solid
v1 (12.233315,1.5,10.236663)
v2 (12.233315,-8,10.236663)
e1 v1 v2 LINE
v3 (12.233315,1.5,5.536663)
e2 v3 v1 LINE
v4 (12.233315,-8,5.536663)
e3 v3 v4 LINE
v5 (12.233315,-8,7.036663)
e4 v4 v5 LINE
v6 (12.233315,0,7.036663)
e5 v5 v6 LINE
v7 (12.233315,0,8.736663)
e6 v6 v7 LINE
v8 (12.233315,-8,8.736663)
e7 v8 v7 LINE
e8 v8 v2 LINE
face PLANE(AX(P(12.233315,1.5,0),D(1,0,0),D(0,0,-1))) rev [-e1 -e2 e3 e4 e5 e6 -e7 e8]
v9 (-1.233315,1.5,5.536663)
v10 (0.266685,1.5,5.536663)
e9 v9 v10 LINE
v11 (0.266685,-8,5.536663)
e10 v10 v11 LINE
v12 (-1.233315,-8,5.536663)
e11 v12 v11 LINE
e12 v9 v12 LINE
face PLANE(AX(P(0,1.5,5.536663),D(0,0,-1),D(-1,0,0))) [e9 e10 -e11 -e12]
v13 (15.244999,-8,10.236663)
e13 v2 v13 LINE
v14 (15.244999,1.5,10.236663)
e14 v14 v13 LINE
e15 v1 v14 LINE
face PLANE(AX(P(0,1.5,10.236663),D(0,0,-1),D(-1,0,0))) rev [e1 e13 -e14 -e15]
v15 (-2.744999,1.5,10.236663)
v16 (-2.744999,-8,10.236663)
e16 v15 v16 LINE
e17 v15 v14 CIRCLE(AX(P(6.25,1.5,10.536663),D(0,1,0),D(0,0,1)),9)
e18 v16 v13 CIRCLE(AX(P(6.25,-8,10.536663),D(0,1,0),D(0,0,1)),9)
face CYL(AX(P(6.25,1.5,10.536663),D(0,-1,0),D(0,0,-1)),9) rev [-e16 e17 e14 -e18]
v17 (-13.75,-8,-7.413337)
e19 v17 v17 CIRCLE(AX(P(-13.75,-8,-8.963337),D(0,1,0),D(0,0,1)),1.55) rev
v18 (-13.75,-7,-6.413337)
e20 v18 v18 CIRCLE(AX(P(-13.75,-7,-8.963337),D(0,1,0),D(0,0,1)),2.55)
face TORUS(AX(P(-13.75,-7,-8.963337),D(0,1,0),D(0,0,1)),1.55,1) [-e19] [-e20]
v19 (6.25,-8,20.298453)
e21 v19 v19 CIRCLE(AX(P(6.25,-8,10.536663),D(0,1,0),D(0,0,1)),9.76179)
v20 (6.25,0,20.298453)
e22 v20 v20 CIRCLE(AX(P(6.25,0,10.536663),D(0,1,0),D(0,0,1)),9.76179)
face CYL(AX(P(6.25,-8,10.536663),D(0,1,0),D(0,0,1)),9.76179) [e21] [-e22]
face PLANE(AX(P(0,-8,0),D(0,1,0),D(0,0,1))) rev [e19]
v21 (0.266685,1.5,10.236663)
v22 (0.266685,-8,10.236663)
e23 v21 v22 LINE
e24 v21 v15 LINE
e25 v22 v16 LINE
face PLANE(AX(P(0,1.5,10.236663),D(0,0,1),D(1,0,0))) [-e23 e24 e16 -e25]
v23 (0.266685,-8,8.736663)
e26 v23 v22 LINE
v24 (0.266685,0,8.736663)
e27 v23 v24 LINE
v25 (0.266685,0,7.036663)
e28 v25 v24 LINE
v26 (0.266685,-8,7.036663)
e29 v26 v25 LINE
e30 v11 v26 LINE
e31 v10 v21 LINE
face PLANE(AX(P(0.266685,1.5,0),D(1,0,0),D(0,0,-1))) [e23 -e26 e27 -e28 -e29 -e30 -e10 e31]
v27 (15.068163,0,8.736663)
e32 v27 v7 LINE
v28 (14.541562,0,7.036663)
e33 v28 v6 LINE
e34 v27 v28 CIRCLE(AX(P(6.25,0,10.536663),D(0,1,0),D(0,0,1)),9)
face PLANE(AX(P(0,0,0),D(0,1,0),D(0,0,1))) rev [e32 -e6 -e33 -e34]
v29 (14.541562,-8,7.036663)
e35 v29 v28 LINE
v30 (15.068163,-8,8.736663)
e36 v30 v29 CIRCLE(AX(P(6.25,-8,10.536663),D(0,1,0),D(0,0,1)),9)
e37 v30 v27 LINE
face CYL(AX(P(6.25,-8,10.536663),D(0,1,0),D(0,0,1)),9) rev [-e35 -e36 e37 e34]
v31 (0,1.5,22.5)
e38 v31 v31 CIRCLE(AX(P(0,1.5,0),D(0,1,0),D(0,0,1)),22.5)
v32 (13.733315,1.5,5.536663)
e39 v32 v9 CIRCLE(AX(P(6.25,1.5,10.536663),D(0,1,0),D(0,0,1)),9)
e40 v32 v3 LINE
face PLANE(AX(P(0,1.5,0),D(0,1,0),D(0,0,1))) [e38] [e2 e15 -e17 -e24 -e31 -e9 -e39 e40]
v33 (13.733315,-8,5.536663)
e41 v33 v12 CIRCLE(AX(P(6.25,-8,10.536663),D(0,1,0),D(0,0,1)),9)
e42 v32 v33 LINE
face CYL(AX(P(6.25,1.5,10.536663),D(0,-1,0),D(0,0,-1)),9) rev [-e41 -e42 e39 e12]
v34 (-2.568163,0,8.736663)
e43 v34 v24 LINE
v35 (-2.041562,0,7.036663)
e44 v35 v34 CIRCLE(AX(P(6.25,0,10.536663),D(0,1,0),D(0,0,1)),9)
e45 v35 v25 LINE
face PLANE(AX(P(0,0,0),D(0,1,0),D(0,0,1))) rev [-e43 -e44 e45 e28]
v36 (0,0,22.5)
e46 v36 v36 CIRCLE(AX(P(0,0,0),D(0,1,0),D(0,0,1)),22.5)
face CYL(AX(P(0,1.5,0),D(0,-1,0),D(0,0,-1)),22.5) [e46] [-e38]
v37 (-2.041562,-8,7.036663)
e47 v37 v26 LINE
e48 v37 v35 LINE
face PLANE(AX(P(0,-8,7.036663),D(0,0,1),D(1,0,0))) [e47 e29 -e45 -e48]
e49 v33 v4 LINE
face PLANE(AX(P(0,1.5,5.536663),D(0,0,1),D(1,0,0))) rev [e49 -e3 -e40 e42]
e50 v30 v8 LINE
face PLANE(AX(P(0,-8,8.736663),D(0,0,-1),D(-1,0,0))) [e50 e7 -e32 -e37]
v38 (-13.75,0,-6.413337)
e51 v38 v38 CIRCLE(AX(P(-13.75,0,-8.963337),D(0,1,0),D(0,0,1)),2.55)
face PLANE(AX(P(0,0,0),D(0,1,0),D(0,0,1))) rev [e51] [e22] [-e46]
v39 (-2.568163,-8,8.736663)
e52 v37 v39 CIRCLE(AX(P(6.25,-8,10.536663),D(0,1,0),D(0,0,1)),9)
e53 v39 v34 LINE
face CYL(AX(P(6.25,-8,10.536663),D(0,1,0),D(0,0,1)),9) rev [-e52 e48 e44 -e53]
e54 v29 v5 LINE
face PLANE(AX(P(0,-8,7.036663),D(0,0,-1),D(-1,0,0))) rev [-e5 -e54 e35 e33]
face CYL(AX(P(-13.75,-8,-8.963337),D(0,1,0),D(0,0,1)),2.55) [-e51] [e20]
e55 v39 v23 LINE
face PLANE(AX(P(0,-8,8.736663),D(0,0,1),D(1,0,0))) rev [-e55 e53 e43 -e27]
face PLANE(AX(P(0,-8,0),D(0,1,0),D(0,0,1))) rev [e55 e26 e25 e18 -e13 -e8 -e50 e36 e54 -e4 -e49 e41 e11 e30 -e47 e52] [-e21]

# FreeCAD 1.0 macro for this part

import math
import FreeCAD as App
import Part
import Sketcher

V = App.Vector


def edges_at(feature, points):
    """Names of the edges that pass closest to the given points."""
    edges = feature.Shape.Edges
    near = lambda p: min(range(len(edges)), key=lambda i: edges[i].distToShape(Part.Vertex(*p))[0])
    return sorted({f"Edge{near(p) + 1}" for p in points})

doc = App.newDocument("Part")
body = doc.addObject("PartDesign::Body", "Body")

# Sketch on XZ plane
sketch1 = doc.addObject("Sketcher::SketchObject", "Sketch")
body.addObject(sketch1)
sketch1.AttachmentSupport = (doc.XZ_Plane, [""])
sketch1.MapMode = "FlatFace"
sketch1.addGeometry(Part.Circle(V(0, 0, 0), V(0, 0, 1), 22.5), False)
sketch1.addGeometry(Part.LineSegment(V(-2.744999, 10.236663, 0), V(0.266685, 10.236663, 0)), False)
sketch1.addGeometry(Part.LineSegment(V(0.266685, 10.236663, 0), V(0.266685, 5.536663, 0)), False)
sketch1.addGeometry(Part.LineSegment(V(0.266685, 5.536663, 0), V(-1.233315, 5.536663, 0)), False)
sketch1.addGeometry(Part.ArcOfCircle(Part.Circle(V(6.25, 10.536663, 0), V(0, 0, 1), 9), math.radians(-146.251011), math.radians(-33.748989)), False)
sketch1.addGeometry(Part.LineSegment(V(13.733315, 5.536663, 0), V(12.233315, 5.536663, 0)), False)
sketch1.addGeometry(Part.LineSegment(V(12.233315, 5.536663, 0), V(12.233315, 10.236663, 0)), False)
sketch1.addGeometry(Part.LineSegment(V(12.233315, 10.236663, 0), V(15.244999, 10.236663, 0)), False)
sketch1.addGeometry(Part.ArcOfCircle(Part.Circle(V(6.25, 10.536663, 0), V(0, 0, 1), 9), math.radians(-1.910213), math.radians(181.910213)), False)
sketch1.addConstraint(Sketcher.Constraint("Coincident", 1, 2, 2, 1))
sketch1.addConstraint(Sketcher.Constraint("Coincident", 2, 2, 3, 1))
sketch1.addConstraint(Sketcher.Constraint("Coincident", 3, 2, 4, 1))
sketch1.addConstraint(Sketcher.Constraint("Coincident", 4, 2, 5, 1))
sketch1.addConstraint(Sketcher.Constraint("Coincident", 5, 2, 6, 1))
sketch1.addConstraint(Sketcher.Constraint("Coincident", 6, 2, 7, 1))
sketch1.addConstraint(Sketcher.Constraint("Coincident", 7, 2, 8, 1))
sketch1.addConstraint(Sketcher.Constraint("Coincident", 8, 2, 1, 1))
sketch1.addConstraint(Sketcher.Constraint("Horizontal", 1))
sketch1.addConstraint(Sketcher.Constraint("Vertical", 2))
sketch1.addConstraint(Sketcher.Constraint("Horizontal", 3))
sketch1.addConstraint(Sketcher.Constraint("Horizontal", 5))
sketch1.addConstraint(Sketcher.Constraint("Vertical", 6))
sketch1.addConstraint(Sketcher.Constraint("Horizontal", 7))
sketch1.addConstraint(Sketcher.Constraint("Coincident", 0, 3, -1, 1))
sketch1.addConstraint(Sketcher.Constraint("Coincident", 8, 3, 4, 3))
sketch1.addConstraint(Sketcher.Constraint("Equal", 4, 8))
sketch1.addConstraint(Sketcher.Constraint("Horizontal", 3, 2, 4, 2))
sketch1.addConstraint(Sketcher.Constraint("Horizontal", 1, 2, 6, 2))
sketch1.addConstraint(Sketcher.Constraint("Equal", 3, 5))
sketch1.addConstraint(Sketcher.Constraint("Diameter", 0, 45.0))
sketch1.addConstraint(Sketcher.Constraint("Radius", 4, 9.0))
sketch1.addConstraint(Sketcher.Constraint("DistanceX", 3, 2, 3, 1, 1.5))
sketch1.addConstraint(Sketcher.Constraint("DistanceY", 2, 2, 2, 1, 4.7))
sketch1.addConstraint(Sketcher.Constraint("DistanceY", 2, 2, 4, 3, 5.0))
sketch1.addConstraint(Sketcher.Constraint("DistanceX", -1, 1, 4, 3, 6.25))
sketch1.addConstraint(Sketcher.Constraint("DistanceY", -1, 1, 4, 3, 10.536663))
pad1 = doc.addObject("PartDesign::Pad", "Pad")
body.addObject(pad1)
pad1.Profile = sketch1
pad1.Length = 1.5
pad1.Reversed = True

# Sketch on XZ plane
sketch2 = doc.addObject("Sketcher::SketchObject", "Sketch001")
body.addObject(sketch2)
sketch2.AttachmentSupport = (doc.XZ_Plane, [""])
sketch2.MapMode = "FlatFace"
sketch2.AttachmentOffset = App.Placement(V(0, 0, 8), App.Rotation())
sketch2.addGeometry(Part.Circle(V(6.25, 10.536663, 0), V(0, 0, 1), 9.76179), False)
sketch2.addGeometry(Part.ArcOfCircle(Part.Circle(V(6.25, 10.536663, 0), V(0, 0, 1), 9), math.radians(-1.910213), math.radians(181.910213)), False)
sketch2.addGeometry(Part.LineSegment(V(-2.744999, 10.236663, 0), V(0.266685, 10.236663, 0)), False)
sketch2.addGeometry(Part.LineSegment(V(0.266685, 10.236663, 0), V(0.266685, 8.736663, 0)), False)
sketch2.addGeometry(Part.LineSegment(V(0.266685, 8.736663, 0), V(-2.568163, 8.736663, 0)), False)
sketch2.addGeometry(Part.ArcOfCircle(Part.Circle(V(6.25, 10.536663, 0), V(0, 0, 1), 9), math.radians(-168.463041), math.radians(-157.11462)), False)
sketch2.addGeometry(Part.LineSegment(V(-2.041562, 7.036663, 0), V(0.266685, 7.036663, 0)), False)
sketch2.addGeometry(Part.LineSegment(V(0.266685, 7.036663, 0), V(0.266685, 5.536663, 0)), False)
sketch2.addGeometry(Part.LineSegment(V(0.266685, 5.536663, 0), V(-1.233315, 5.536663, 0)), False)
sketch2.addGeometry(Part.ArcOfCircle(Part.Circle(V(6.25, 10.536663, 0), V(0, 0, 1), 9), math.radians(-146.251011), math.radians(-33.748989)), False)
sketch2.addGeometry(Part.LineSegment(V(13.733315, 5.536663, 0), V(12.233315, 5.536663, 0)), False)
sketch2.addGeometry(Part.LineSegment(V(12.233315, 5.536663, 0), V(12.233315, 7.036663, 0)), False)
sketch2.addGeometry(Part.LineSegment(V(12.233315, 7.036663, 0), V(14.541562, 7.036663, 0)), False)
sketch2.addGeometry(Part.ArcOfCircle(Part.Circle(V(6.25, 10.536663, 0), V(0, 0, 1), 9), math.radians(-22.88538), math.radians(-11.536959)), False)
sketch2.addGeometry(Part.LineSegment(V(15.068163, 8.736663, 0), V(12.233315, 8.736663, 0)), False)
sketch2.addGeometry(Part.LineSegment(V(12.233315, 8.736663, 0), V(12.233315, 10.236663, 0)), False)
sketch2.addGeometry(Part.LineSegment(V(12.233315, 10.236663, 0), V(15.244999, 10.236663, 0)), False)
sketch2.addGeometry(Part.Circle(V(-13.75, -8.963337, 0), V(0, 0, 1), 2.55), False)
sketch2.addConstraint(Sketcher.Constraint("Coincident", 1, 2, 2, 1))
sketch2.addConstraint(Sketcher.Constraint("Coincident", 2, 2, 3, 1))
sketch2.addConstraint(Sketcher.Constraint("Coincident", 3, 2, 4, 1))
sketch2.addConstraint(Sketcher.Constraint("Coincident", 4, 2, 5, 1))
sketch2.addConstraint(Sketcher.Constraint("Coincident", 5, 2, 6, 1))
sketch2.addConstraint(Sketcher.Constraint("Coincident", 6, 2, 7, 1))
sketch2.addConstraint(Sketcher.Constraint("Coincident", 7, 2, 8, 1))
sketch2.addConstraint(Sketcher.Constraint("Coincident", 8, 2, 9, 1))
sketch2.addConstraint(Sketcher.Constraint("Coincident", 9, 2, 10, 1))
sketch2.addConstraint(Sketcher.Constraint("Coincident", 10, 2, 11, 1))
sketch2.addConstraint(Sketcher.Constraint("Coincident", 11, 2, 12, 1))
sketch2.addConstraint(Sketcher.Constraint("Coincident", 12, 2, 13, 1))
sketch2.addConstraint(Sketcher.Constraint("Coincident", 13, 2, 14, 1))
sketch2.addConstraint(Sketcher.Constraint("Coincident", 14, 2, 15, 1))
sketch2.addConstraint(Sketcher.Constraint("Coincident", 15, 2, 16, 1))
sketch2.addConstraint(Sketcher.Constraint("Coincident", 16, 2, 1, 1))
sketch2.addConstraint(Sketcher.Constraint("Horizontal", 2))
sketch2.addConstraint(Sketcher.Constraint("Vertical", 3))
sketch2.addConstraint(Sketcher.Constraint("Horizontal", 4))
sketch2.addConstraint(Sketcher.Constraint("Horizontal", 6))
sketch2.addConstraint(Sketcher.Constraint("Vertical", 7))
sketch2.addConstraint(Sketcher.Constraint("Horizontal", 8))
sketch2.addConstraint(Sketcher.Constraint("Horizontal", 10))
sketch2.addConstraint(Sketcher.Constraint("Vertical", 11))
sketch2.addConstraint(Sketcher.Constraint("Horizontal", 12))
sketch2.addConstraint(Sketcher.Constraint("Horizontal", 14))
sketch2.addConstraint(Sketcher.Constraint("Vertical", 15))
sketch2.addConstraint(Sketcher.Constraint("Horizontal", 16))
sketch2.addConstraint(Sketcher.Constraint("Coincident", 1, 3, 0, 3))
sketch2.addConstraint(Sketcher.Constraint("Coincident", 5, 3, 0, 3))
sketch2.addConstraint(Sketcher.Constraint("Coincident", 9, 3, 0, 3))
sketch2.addConstraint(Sketcher.Constraint("Coincident", 13, 3, 0, 3))
sketch2.addConstraint(Sketcher.Constraint("Equal", 1, 5))
sketch2.addConstraint(Sketcher.Constraint("Equal", 5, 9))
sketch2.addConstraint(Sketcher.Constraint("Equal", 9, 13))
sketch2.addConstraint(Sketcher.Constraint("Horizontal", 8, 2, 9, 2))
sketch2.addConstraint(Sketcher.Constraint("Horizontal", 6, 2, 11, 2))
sketch2.addConstraint(Sketcher.Constraint("Horizontal", 4, 2, 13, 2))
sketch2.addConstraint(Sketcher.Constraint("Horizontal", 2, 2, 15, 2))
sketch2.addConstraint(Sketcher.Constraint("Vertical", 3, 2, 6, 2))
sketch2.addConstraint(Sketcher.Constraint("Vertical", 11, 2, 14, 2))
sketch2.addConstraint(Sketcher.Constraint("Equal", 8, 10))
sketch2.addConstraint(Sketcher.Constraint("Equal", 10, 3))
sketch2.addConstraint(Sketcher.Constraint("Equal", 3, 7))
sketch2.addConstraint(Sketcher.Constraint("Radius", 1, 9.0))
sketch2.addConstraint(Sketcher.Constraint("Diameter", 17, 5.1))
sketch2.addConstraint(Sketcher.Constraint("DistanceX", 8, 2, 8, 1, 1.5))
sketch2.addConstraint(Sketcher.Constraint("DistanceX", 17, 3, 0, 3, 20.0))
sketch2.addConstraint(Sketcher.Constraint("DistanceY", 9, 2, 0, 3, 5.0))
sketch2.addConstraint(Sketcher.Constraint("DistanceY", 17, 3, 0, 3, 19.5))
sketch2.addConstraint(Sketcher.Constraint("DistanceY", 1, 2, 0, 3, 0.3))
sketch2.addConstraint(Sketcher.Constraint("Diameter", 0, 19.523581))
sketch2.addConstraint(Sketcher.Constraint("DistanceX", -1, 1, 0, 3, 6.25))
sketch2.addConstraint(Sketcher.Constraint("DistanceY", -1, 1, 0, 3, 10.536663))
pad2 = doc.addObject("PartDesign::Pad", "Pad001")
body.addObject(pad2)
pad2.Profile = sketch2
pad2.Length = 8
pad2.Reversed = True
doc.recompute()

fillet = doc.addObject("PartDesign::Fillet", "Fillet")
body.addObject(fillet)
fillet.Base = (pad2, edges_at(pad2, [(-13.75, -8, -11.513)]))
fillet.Radius = 1

doc.recompute()
